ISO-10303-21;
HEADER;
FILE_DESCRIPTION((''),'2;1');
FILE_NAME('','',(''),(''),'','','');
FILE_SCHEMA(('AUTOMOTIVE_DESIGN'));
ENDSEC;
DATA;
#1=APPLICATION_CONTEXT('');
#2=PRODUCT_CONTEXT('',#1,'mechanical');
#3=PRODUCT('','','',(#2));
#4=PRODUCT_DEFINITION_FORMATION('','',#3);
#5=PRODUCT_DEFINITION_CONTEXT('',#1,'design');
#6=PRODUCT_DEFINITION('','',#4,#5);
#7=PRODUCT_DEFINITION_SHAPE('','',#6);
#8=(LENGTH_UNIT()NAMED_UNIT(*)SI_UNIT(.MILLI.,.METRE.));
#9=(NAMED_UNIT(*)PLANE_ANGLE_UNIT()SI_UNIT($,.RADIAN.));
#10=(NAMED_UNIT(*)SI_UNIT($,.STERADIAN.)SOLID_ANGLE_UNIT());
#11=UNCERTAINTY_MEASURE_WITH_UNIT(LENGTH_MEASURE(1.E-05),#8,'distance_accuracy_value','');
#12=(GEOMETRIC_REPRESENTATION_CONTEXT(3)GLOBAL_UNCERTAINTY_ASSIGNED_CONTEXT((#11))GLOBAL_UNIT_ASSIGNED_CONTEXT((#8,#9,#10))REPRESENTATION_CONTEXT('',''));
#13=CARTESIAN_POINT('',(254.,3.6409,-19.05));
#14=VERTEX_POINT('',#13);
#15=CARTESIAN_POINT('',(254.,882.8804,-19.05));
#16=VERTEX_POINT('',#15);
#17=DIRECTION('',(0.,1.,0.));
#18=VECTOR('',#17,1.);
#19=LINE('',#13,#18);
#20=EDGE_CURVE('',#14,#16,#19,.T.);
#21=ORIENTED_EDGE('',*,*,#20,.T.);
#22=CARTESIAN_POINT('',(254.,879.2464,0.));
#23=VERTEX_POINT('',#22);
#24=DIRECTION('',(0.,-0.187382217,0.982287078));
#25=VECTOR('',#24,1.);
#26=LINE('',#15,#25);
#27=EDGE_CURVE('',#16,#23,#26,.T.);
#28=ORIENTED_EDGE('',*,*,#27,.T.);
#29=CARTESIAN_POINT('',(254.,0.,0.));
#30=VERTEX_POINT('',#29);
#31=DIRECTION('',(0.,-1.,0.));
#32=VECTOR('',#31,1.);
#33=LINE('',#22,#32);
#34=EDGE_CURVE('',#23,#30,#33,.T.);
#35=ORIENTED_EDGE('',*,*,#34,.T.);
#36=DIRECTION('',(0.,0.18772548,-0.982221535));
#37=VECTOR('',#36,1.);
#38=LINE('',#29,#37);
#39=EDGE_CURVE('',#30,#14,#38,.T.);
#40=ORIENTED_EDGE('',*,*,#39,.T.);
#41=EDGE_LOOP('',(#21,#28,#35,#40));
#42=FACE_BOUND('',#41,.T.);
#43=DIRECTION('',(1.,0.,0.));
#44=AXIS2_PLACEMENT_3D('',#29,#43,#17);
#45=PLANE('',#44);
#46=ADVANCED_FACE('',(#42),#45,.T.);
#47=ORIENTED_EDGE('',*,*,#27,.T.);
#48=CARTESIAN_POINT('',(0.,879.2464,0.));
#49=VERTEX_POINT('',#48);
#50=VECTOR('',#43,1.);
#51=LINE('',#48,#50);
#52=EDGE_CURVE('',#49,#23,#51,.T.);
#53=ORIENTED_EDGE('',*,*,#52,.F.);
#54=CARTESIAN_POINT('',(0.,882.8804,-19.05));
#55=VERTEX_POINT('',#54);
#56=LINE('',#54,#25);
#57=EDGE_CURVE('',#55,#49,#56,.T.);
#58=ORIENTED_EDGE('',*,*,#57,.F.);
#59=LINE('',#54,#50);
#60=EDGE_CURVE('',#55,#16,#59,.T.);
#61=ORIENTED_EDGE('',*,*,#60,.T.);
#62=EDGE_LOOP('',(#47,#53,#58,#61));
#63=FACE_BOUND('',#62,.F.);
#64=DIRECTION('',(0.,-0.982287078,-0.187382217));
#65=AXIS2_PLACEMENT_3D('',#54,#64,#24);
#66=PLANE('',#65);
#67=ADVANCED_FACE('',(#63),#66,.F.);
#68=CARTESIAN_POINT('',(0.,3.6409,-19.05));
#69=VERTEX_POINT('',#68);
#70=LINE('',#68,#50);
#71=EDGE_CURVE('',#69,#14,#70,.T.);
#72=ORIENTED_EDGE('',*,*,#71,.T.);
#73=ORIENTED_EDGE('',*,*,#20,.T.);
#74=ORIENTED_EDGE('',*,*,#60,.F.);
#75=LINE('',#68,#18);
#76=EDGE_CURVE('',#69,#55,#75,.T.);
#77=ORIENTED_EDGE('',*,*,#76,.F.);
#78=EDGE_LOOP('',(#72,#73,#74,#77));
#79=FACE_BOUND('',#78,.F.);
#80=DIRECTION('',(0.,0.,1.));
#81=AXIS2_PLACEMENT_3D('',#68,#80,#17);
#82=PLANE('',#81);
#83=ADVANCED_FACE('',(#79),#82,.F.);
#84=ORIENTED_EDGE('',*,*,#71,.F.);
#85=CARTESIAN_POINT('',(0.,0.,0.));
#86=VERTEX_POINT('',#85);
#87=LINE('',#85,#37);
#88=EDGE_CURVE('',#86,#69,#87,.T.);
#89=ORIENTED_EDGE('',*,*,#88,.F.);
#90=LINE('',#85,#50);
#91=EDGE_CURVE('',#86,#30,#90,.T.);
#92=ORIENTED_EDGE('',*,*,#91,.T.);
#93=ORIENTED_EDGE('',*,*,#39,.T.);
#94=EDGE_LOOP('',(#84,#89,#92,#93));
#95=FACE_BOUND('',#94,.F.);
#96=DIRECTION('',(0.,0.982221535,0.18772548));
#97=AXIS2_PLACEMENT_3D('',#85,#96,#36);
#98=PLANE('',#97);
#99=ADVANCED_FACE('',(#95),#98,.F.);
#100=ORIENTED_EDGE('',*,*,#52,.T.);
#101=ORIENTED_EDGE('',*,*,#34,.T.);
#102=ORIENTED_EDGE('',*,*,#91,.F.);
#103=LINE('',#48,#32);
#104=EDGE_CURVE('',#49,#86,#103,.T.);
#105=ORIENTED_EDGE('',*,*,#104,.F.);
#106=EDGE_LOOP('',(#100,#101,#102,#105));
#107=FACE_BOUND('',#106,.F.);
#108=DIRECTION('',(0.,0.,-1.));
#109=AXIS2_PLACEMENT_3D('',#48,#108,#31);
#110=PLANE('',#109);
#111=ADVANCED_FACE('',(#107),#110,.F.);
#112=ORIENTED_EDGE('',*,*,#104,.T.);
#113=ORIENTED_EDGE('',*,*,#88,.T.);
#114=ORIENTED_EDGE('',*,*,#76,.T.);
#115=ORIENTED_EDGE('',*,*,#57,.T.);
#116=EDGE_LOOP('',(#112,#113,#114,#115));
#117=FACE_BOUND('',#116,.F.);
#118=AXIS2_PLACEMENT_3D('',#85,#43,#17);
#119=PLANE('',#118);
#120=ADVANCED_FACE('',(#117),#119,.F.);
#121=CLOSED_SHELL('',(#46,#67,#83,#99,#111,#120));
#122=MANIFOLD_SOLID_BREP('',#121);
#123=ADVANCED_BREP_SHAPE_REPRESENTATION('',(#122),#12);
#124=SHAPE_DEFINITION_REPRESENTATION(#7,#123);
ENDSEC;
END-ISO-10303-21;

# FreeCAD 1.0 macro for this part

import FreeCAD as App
import Part
import Sketcher
from FreeCAD import Vector
Q = App.Units.Quantity

doc = App.newDocument("Part")
body = doc.addObject("PartDesign::Body", "Body")

# Sketch on YZ plane
sketch1 = body.newObject("Sketcher::SketchObject", "Sketch")
sketch1.AttachmentSupport = (doc.getObject("YZ_Plane"), [""])
sketch1.MapMode = "FlatFace"
sketch1.addGeometry(Part.LineSegment(Vector(882.8804, -19.05, 0), Vector(879.2464, 0, 0)), False)
sketch1.addGeometry(Part.LineSegment(Vector(879.2464, 0, 0), Vector(0, 0, 0)), False)
sketch1.addGeometry(Part.LineSegment(Vector(0, 0, 0), Vector(3.6409, -19.05, 0)), False)
sketch1.addGeometry(Part.LineSegment(Vector(3.6409, -19.05, 0), Vector(882.8804, -19.05, 0)), False)
sketch1.addConstraint(Sketcher.Constraint("Coincident", 0, 2, 1, 1))
sketch1.addConstraint(Sketcher.Constraint("Coincident", 1, 2, 2, 1))
sketch1.addConstraint(Sketcher.Constraint("Coincident", 2, 2, 3, 1))
sketch1.addConstraint(Sketcher.Constraint("Coincident", 3, 2, 0, 1))
sketch1.addConstraint(Sketcher.Constraint("Horizontal", 1))
sketch1.addConstraint(Sketcher.Constraint("Horizontal", 3))
sketch1.addConstraint(Sketcher.Constraint("Coincident", 1, 2, -1, 1))
sketch1.addConstraint(Sketcher.Constraint("DistanceX", 1, 2, 1, 1, Q("34.616 in")))
sketch1.addConstraint(Sketcher.Constraint("DistanceY", 2, 2, -1, 1, Q("0.75 in")))
sketch1.addConstraint(Sketcher.Constraint("DistanceX", 3, 1, 3, 2, Q("879.2395 mm")))
sketch1.addConstraint(Sketcher.Constraint("Distance", 0, Q("19.3935 mm")))
pad1 = body.newObject("PartDesign::Pad", "Pad")
pad1.Profile = sketch1
pad1.Length = Q("10 in")

doc.recompute()
